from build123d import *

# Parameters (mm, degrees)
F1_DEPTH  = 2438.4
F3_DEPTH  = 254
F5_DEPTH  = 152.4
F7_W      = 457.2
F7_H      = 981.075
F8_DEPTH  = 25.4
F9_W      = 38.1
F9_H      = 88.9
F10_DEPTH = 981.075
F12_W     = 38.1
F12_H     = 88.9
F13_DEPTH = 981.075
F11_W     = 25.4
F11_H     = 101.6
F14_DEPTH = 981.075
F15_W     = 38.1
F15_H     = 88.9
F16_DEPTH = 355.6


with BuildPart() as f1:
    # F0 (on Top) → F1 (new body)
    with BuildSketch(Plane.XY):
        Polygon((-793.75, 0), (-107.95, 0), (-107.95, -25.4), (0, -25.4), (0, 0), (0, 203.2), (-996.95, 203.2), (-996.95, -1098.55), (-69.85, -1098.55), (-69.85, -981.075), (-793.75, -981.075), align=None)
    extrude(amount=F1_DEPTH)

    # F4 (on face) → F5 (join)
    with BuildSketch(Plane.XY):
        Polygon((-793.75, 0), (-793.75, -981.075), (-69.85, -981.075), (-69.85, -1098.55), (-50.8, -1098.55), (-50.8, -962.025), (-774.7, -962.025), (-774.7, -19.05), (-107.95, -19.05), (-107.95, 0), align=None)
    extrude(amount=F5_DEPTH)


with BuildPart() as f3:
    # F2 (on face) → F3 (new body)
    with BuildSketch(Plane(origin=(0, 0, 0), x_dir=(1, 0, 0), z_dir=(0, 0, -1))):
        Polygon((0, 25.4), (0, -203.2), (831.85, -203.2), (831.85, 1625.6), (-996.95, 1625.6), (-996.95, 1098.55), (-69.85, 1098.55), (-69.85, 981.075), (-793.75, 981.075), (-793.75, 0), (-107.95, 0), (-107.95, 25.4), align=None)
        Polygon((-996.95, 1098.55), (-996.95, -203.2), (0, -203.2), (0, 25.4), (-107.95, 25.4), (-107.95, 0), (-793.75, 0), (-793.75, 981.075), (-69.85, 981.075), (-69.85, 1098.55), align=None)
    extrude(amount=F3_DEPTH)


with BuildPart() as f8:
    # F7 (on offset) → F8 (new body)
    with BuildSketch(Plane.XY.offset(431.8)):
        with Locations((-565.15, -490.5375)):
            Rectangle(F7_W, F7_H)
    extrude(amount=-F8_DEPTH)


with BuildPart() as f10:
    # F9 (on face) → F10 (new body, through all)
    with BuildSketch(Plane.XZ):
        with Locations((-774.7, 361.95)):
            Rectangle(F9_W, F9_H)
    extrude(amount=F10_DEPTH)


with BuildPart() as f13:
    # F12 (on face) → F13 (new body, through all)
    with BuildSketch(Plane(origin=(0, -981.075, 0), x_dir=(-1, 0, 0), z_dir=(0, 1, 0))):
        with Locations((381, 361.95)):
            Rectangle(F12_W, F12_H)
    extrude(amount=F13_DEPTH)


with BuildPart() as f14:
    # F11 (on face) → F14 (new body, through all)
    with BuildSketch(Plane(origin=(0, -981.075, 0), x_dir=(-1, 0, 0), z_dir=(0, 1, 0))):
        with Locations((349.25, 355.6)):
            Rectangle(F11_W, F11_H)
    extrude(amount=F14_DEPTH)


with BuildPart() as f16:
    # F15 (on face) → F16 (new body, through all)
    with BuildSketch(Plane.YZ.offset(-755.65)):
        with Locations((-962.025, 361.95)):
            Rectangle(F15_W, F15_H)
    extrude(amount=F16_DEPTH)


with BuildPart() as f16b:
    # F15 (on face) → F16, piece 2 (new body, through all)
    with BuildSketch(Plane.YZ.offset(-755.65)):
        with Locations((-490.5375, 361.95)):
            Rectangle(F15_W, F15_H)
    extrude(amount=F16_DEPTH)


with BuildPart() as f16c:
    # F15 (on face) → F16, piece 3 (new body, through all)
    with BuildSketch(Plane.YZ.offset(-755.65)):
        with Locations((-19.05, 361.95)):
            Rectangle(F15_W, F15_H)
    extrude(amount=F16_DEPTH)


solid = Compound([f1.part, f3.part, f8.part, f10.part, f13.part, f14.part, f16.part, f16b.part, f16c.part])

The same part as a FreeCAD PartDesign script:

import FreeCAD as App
import Part
import Sketcher
from FreeCAD import Vector
Q = App.Units.Quantity

doc = App.newDocument("Part")
params = doc.addObject("Spreadsheet::Sheet", "Params")
for row, (alias, value) in enumerate([
    ("sketch1_width", "27 in"),
    ("sketch1_height", "1 in"),
    ("sketch1_height2", "9 in"),
    ("sketch1_width2", "36.5 in"),
    ("sketch1_width3", "28.5 in"),
    ("pad1_length", "96 in"),
    ("sketch2_width", "27 in"),
    ("sketch2_width2", "28.5 in"),
    ("sketch2_width3", "0.75 in"),
    ("sketch2_height", "38.625 in"),
    ("sketch2_height2", "5.375 in"),
    ("pad2_length", "6 in"),
    ("sketch3_width", "72 in"),
    ("pad3_length", "10 in"),
    ("sketch4_width", "18 in"),
    ("sketch4_height", "38.625 in"),
    ("pad4_length", "1 in"),
    ("sketch5_width", "1.5 in"),
    ("sketch5_height", "3.5 in"),
    ("pad5_length", "38.625 in"),
    ("sketch6_width", "1.5 in"),
    ("sketch6_height", "3.5 in"),
    ("pad6_length", "38.625 in"),
    ("sketch7_width", "1 in"),
    ("sketch7_height", "4 in"),
    ("pad7_length", "38.625 in"),
    ("sketch8_width", "1.5 in"),
    ("sketch8_height", "3.5 in"),
    ("pad8_length", "14 in"),
    ("sketch9_width", "1.5 in"),
    ("sketch9_height", "3.5 in"),
    ("pad9_length", "14 in"),
    ("sketch10_width", "1.5 in"),
    ("sketch10_height", "3.5 in"),
    ("pad10_length", "14 in"),
], start=1):
    params.set(f"A{row}", alias)
    params.set(f"B{row}", "=" + value)
    params.setAlias(f"B{row}", alias)

body = doc.addObject("PartDesign::Body", "Body")

# Sketch on XY plane
sketch1 = body.newObject("Sketcher::SketchObject", "Sketch")
sketch1.AttachmentSupport = (doc.getObject("XY_Plane"), [""])
sketch1.MapMode = "FlatFace"
sketch1.addGeometry(Part.LineSegment(Vector(-793.75, 0, 0), Vector(-107.95, 0, 0)), False)
sketch1.addGeometry(Part.LineSegment(Vector(-107.95, 0, 0), Vector(-107.95, -25.4, 0)), False)
sketch1.addGeometry(Part.LineSegment(Vector(-107.95, -25.4, 0), Vector(0, -25.4, 0)), False)
sketch1.addGeometry(Part.LineSegment(Vector(0, -25.4, 0), Vector(0, 203.2, 0)), False)
sketch1.addGeometry(Part.LineSegment(Vector(0, 203.2, 0), Vector(-996.95, 203.2, 0)), False)
sketch1.addGeometry(Part.LineSegment(Vector(-996.95, 203.2, 0), Vector(-996.95, -1098.55, 0)), False)
sketch1.addGeometry(Part.LineSegment(Vector(-996.95, -1098.55, 0), Vector(-69.85, -1098.55, 0)), False)
sketch1.addGeometry(Part.LineSegment(Vector(-69.85, -1098.55, 0), Vector(-69.85, -981.075, 0)), False)
sketch1.addGeometry(Part.LineSegment(Vector(-69.85, -981.075, 0), Vector(-793.75, -981.075, 0)), False)
sketch1.addGeometry(Part.LineSegment(Vector(-793.75, -981.075, 0), Vector(-793.75, 0, 0)), False)
sketch1.addConstraint(Sketcher.Constraint("Coincident", 0, 2, 1, 1))
sketch1.addConstraint(Sketcher.Constraint("Coincident", 1, 2, 2, 1))
sketch1.addConstraint(Sketcher.Constraint("Coincident", 2, 2, 3, 1))
sketch1.addConstraint(Sketcher.Constraint("Coincident", 3, 2, 4, 1))
sketch1.addConstraint(Sketcher.Constraint("Coincident", 4, 2, 5, 1))
sketch1.addConstraint(Sketcher.Constraint("Coincident", 5, 2, 6, 1))
sketch1.addConstraint(Sketcher.Constraint("Coincident", 6, 2, 7, 1))
sketch1.addConstraint(Sketcher.Constraint("Coincident", 7, 2, 8, 1))
sketch1.addConstraint(Sketcher.Constraint("Coincident", 8, 2, 9, 1))
sketch1.addConstraint(Sketcher.Constraint("Coincident", 9, 2, 0, 1))
sketch1.addConstraint(Sketcher.Constraint("Horizontal", 0))
sketch1.addConstraint(Sketcher.Constraint("Vertical", 1))
sketch1.addConstraint(Sketcher.Constraint("Horizontal", 2))
sketch1.addConstraint(Sketcher.Constraint("Vertical", 3))
sketch1.addConstraint(Sketcher.Constraint("Horizontal", 4))
sketch1.addConstraint(Sketcher.Constraint("Vertical", 5))
sketch1.addConstraint(Sketcher.Constraint("Horizontal", 6))
sketch1.addConstraint(Sketcher.Constraint("Vertical", 7))
sketch1.addConstraint(Sketcher.Constraint("Horizontal", 8))
sketch1.addConstraint(Sketcher.Constraint("Vertical", 9))
sketch1.addConstraint(Sketcher.Constraint("PointOnObject", 0, 2, -1))
sketch1.addConstraint(Sketcher.Constraint("PointOnObject", 2, 2, -2))
sketch1.addConstraint(Sketcher.Constraint("DistanceX", 0, 1, 0, 2, Q("27 in")))
sketch1.addConstraint(Sketcher.Constraint("DistanceY", 1, 2, 1, 1, Q("1 in")))
sketch1.addConstraint(Sketcher.Constraint("DistanceY", 3, 1, 3, 2, Q("9 in")))
sketch1.addConstraint(Sketcher.Constraint("DistanceX", 6, 1, 6, 2, Q("36.5 in")))
sketch1.addConstraint(Sketcher.Constraint("DistanceX", 8, 2, 8, 1, Q("28.5 in")))
sketch1.addConstraint(Sketcher.Constraint("DistanceX", 2, 1, 2, 2, Q("4.25 in")))
sketch1.addConstraint(Sketcher.Constraint("DistanceY", 5, 2, 5, 1, Q("51.25 in")))
sketch1.addConstraint(Sketcher.Constraint("DistanceY", 7, 1, 7, 2, Q("4.625 in")))
sketch1.setExpression("Constraints[22]", "Params.sketch1_width")
sketch1.setExpression("Constraints[23]", "Params.sketch1_height")
sketch1.setExpression("Constraints[24]", "Params.sketch1_height2")
sketch1.setExpression("Constraints[25]", "Params.sketch1_width2")
sketch1.setExpression("Constraints[26]", "Params.sketch1_width3")
pad1 = body.newObject("PartDesign::Pad", "Pad")
pad1.Profile = sketch1
pad1.setExpression("Length", "Params.pad1_length")

# Sketch on XY plane
sketch2 = body.newObject("Sketcher::SketchObject", "Sketch001")
sketch2.AttachmentSupport = (doc.getObject("XY_Plane"), [""])
sketch2.MapMode = "FlatFace"
sketch2.addGeometry(Part.LineSegment(Vector(-793.75, 0, 0), Vector(-793.75, -981.075, 0)), False)
sketch2.addGeometry(Part.LineSegment(Vector(-793.75, -981.075, 0), Vector(-69.85, -981.075, 0)), False)
sketch2.addGeometry(Part.LineSegment(Vector(-69.85, -981.075, 0), Vector(-69.85, -1098.55, 0)), False)
sketch2.addGeometry(Part.LineSegment(Vector(-69.85, -1098.55, 0), Vector(-50.8, -1098.55, 0)), False)
sketch2.addGeometry(Part.LineSegment(Vector(-50.8, -1098.55, 0), Vector(-50.8, -962.025, 0)), False)
sketch2.addGeometry(Part.LineSegment(Vector(-50.8, -962.025, 0), Vector(-774.7, -962.025, 0)), False)
sketch2.addGeometry(Part.LineSegment(Vector(-774.7, -962.025, 0), Vector(-774.7, -19.05, 0)), False)
sketch2.addGeometry(Part.LineSegment(Vector(-774.7, -19.05, 0), Vector(-107.95, -19.05, 0)), False)
sketch2.addGeometry(Part.LineSegment(Vector(-107.95, -19.05, 0), Vector(-107.95, 0, 0)), False)
sketch2.addGeometry(Part.LineSegment(Vector(-107.95, 0, 0), Vector(-793.75, 0, 0)), False)
sketch2.addConstraint(Sketcher.Constraint("Coincident", 0, 2, 1, 1))
sketch2.addConstraint(Sketcher.Constraint("Coincident", 1, 2, 2, 1))
sketch2.addConstraint(Sketcher.Constraint("Coincident", 2, 2, 3, 1))
sketch2.addConstraint(Sketcher.Constraint("Coincident", 3, 2, 4, 1))
sketch2.addConstraint(Sketcher.Constraint("Coincident", 4, 2, 5, 1))
sketch2.addConstraint(Sketcher.Constraint("Coincident", 5, 2, 6, 1))
sketch2.addConstraint(Sketcher.Constraint("Coincident", 6, 2, 7, 1))
sketch2.addConstraint(Sketcher.Constraint("Coincident", 7, 2, 8, 1))
sketch2.addConstraint(Sketcher.Constraint("Coincident", 8, 2, 9, 1))
sketch2.addConstraint(Sketcher.Constraint("Coincident", 9, 2, 0, 1))
sketch2.addConstraint(Sketcher.Constraint("Vertical", 0))
sketch2.addConstraint(Sketcher.Constraint("Horizontal", 1))
sketch2.addConstraint(Sketcher.Constraint("Vertical", 2))
sketch2.addConstraint(Sketcher.Constraint("Horizontal", 3))
sketch2.addConstraint(Sketcher.Constraint("Vertical", 4))
sketch2.addConstraint(Sketcher.Constraint("Horizontal", 5))
sketch2.addConstraint(Sketcher.Constraint("Vertical", 6))
sketch2.addConstraint(Sketcher.Constraint("Horizontal", 7))
sketch2.addConstraint(Sketcher.Constraint("Vertical", 8))
sketch2.addConstraint(Sketcher.Constraint("Horizontal", 9))
sketch2.addConstraint(Sketcher.Constraint("PointOnObject", 8, 2, -1))
sketch2.addConstraint(Sketcher.Constraint("Equal", 1, 5))
sketch2.addConstraint(Sketcher.Constraint("Equal", 3, 8))
sketch2.addConstraint(Sketcher.Constraint("DistanceX", 9, 2, 9, 1, Q("27 in")))
sketch2.addConstraint(Sketcher.Constraint("DistanceX", 1, 1, 1, 2, Q("28.5 in")))
sketch2.addConstraint(Sketcher.Constraint("DistanceX", 3, 2, -1, 1, Q("2 in")))
sketch2.addConstraint(Sketcher.Constraint("DistanceX", 3, 1, 3, 2, Q("0.75 in")))
sketch2.addConstraint(Sketcher.Constraint("DistanceY", 2, 2, 6, 2, Q("42.5 in")))
sketch2.addConstraint(Sketcher.Constraint("DistanceY", 0, 2, 0, 1, Q("38.625 in")))
sketch2.addConstraint(Sketcher.Constraint("DistanceY", 4, 1, 4, 2, Q("5.375 in")))
sketch2.setExpression("Constraints[23]", "Params.sketch2_width")
sketch2.setExpression("Constraints[24]", "Params.sketch2_width2")
sketch2.setExpression("Constraints[26]", "Params.sketch2_width3")
sketch2.setExpression("Constraints[28]", "Params.sketch2_height")
sketch2.setExpression("Constraints[29]", "Params.sketch2_height2")
pad2 = body.newObject("PartDesign::Pad", "Pad001")
pad2.Profile = sketch2
pad2.setExpression("Length", "Params.pad2_length")
body2 = doc.addObject("PartDesign::Body", "Body001")

# Sketch on XY plane
sketch3 = body2.newObject("Sketcher::SketchObject", "Sketch002")
sketch3.AttachmentSupport = (doc.getObject("XY_Plane001"), [""])
sketch3.MapMode = "FlatFace"
sketch3.addGeometry(Part.LineSegment(Vector(831.85, 203.2, 0), Vector(831.85, -1625.6, 0)), False)
sketch3.addGeometry(Part.LineSegment(Vector(831.85, -1625.6, 0), Vector(-996.95, -1625.6, 0)), False)
sketch3.addGeometry(Part.LineSegment(Vector(-996.95, -1625.6, 0), Vector(-996.95, 203.2, 0)), False)
sketch3.addGeometry(Part.LineSegment(Vector(-996.95, 203.2, 0), Vector(831.85, 203.2, 0)), False)
sketch3.addConstraint(Sketcher.Constraint("Coincident", 0, 2, 1, 1))
sketch3.addConstraint(Sketcher.Constraint("Coincident", 1, 2, 2, 1))
sketch3.addConstraint(Sketcher.Constraint("Coincident", 2, 2, 3, 1))
sketch3.addConstraint(Sketcher.Constraint("Coincident", 3, 2, 0, 1))
sketch3.addConstraint(Sketcher.Constraint("Vertical", 0))
sketch3.addConstraint(Sketcher.Constraint("Horizontal", 1))
sketch3.addConstraint(Sketcher.Constraint("Vertical", 2))
sketch3.addConstraint(Sketcher.Constraint("Horizontal", 3))
sketch3.addConstraint(Sketcher.Constraint("Equal", 3, 0))
sketch3.addConstraint(Sketcher.Constraint("DistanceX", 1, 2, 1, 1, Q("72 in")))
sketch3.addConstraint(Sketcher.Constraint("DistanceY", 0, 2, -1, 1, Q("64 in")))
sketch3.addConstraint(Sketcher.Constraint("DistanceX", -1, 1, 0, 2, Q("32.75 in")))
sketch3.setExpression("Constraints[9]", "Params.sketch3_width")
pad3 = body2.newObject("PartDesign::Pad", "Pad002")
pad3.Profile = sketch3
pad3.setExpression("Length", "Params.pad3_length")
pad3.Reversed = True
body3 = doc.addObject("PartDesign::Body", "Body002")

# Sketch on XY plane
sketch4 = body3.newObject("Sketcher::SketchObject", "Sketch003")
sketch4.AttachmentSupport = (doc.getObject("XY_Plane002"), [""])
sketch4.MapMode = "FlatFace"
sketch4.AttachmentOffset = App.Placement(Vector(0, 0, 17 * 25.4), App.Rotation())
sketch4.addGeometry(Part.LineSegment(Vector(-793.75, 0, 0), Vector(-793.75, -981.075, 0)), False)
sketch4.addGeometry(Part.LineSegment(Vector(-793.75, -981.075, 0), Vector(-336.55, -981.075, 0)), False)
sketch4.addGeometry(Part.LineSegment(Vector(-336.55, -981.075, 0), Vector(-336.55, 0, 0)), False)
sketch4.addGeometry(Part.LineSegment(Vector(-336.55, 0, 0), Vector(-793.75, 0, 0)), False)
sketch4.addConstraint(Sketcher.Constraint("Coincident", 0, 2, 1, 1))
sketch4.addConstraint(Sketcher.Constraint("Coincident", 1, 2, 2, 1))
sketch4.addConstraint(Sketcher.Constraint("Coincident", 2, 2, 3, 1))
sketch4.addConstraint(Sketcher.Constraint("Coincident", 3, 2, 0, 1))
sketch4.addConstraint(Sketcher.Constraint("Vertical", 0))
sketch4.addConstraint(Sketcher.Constraint("Horizontal", 1))
sketch4.addConstraint(Sketcher.Constraint("Vertical", 2))
sketch4.addConstraint(Sketcher.Constraint("Horizontal", 3))
sketch4.addConstraint(Sketcher.Constraint("PointOnObject", 2, 2, -1))
sketch4.addConstraint(Sketcher.Constraint("DistanceX", 1, 1, 1, 2, Q("18 in")))
sketch4.addConstraint(Sketcher.Constraint("DistanceY", 0, 2, 0, 1, Q("38.625 in")))
sketch4.addConstraint(Sketcher.Constraint("DistanceX", 0, 2, -1, 1, Q("31.25 in")))
sketch4.setExpression("Constraints[9]", "Params.sketch4_width")
sketch4.setExpression("Constraints[10]", "Params.sketch4_height")
pad4 = body3.newObject("PartDesign::Pad", "Pad003")
pad4.Profile = sketch4
pad4.setExpression("Length", "Params.pad4_length")
pad4.Reversed = True
body4 = doc.addObject("PartDesign::Body", "Body003")

# Sketch on XZ plane
sketch5 = body4.newObject("Sketcher::SketchObject", "Sketch004")
sketch5.AttachmentSupport = (doc.getObject("XZ_Plane003"), [""])
sketch5.MapMode = "FlatFace"
sketch5.addGeometry(Part.LineSegment(Vector(-793.75, 406.4, 0), Vector(-793.75, 317.5, 0)), False)
sketch5.addGeometry(Part.LineSegment(Vector(-793.75, 317.5, 0), Vector(-755.65, 317.5, 0)), False)
sketch5.addGeometry(Part.LineSegment(Vector(-755.65, 317.5, 0), Vector(-755.65, 406.4, 0)), False)
sketch5.addGeometry(Part.LineSegment(Vector(-755.65, 406.4, 0), Vector(-793.75, 406.4, 0)), False)
sketch5.addConstraint(Sketcher.Constraint("Coincident", 0, 2, 1, 1))
sketch5.addConstraint(Sketcher.Constraint("Coincident", 1, 2, 2, 1))
sketch5.addConstraint(Sketcher.Constraint("Coincident", 2, 2, 3, 1))
sketch5.addConstraint(Sketcher.Constraint("Coincident", 3, 2, 0, 1))
sketch5.addConstraint(Sketcher.Constraint("Vertical", 0))
sketch5.addConstraint(Sketcher.Constraint("Horizontal", 1))
sketch5.addConstraint(Sketcher.Constraint("Vertical", 2))
sketch5.addConstraint(Sketcher.Constraint("Horizontal", 3))
sketch5.addConstraint(Sketcher.Constraint("DistanceX", 1, 1, 1, 2, Q("1.5 in")))
sketch5.addConstraint(Sketcher.Constraint("DistanceY", 0, 2, 0, 1, Q("3.5 in")))
sketch5.addConstraint(Sketcher.Constraint("DistanceY", -1, 1, 2, 2, Q("16 in")))
sketch5.addConstraint(Sketcher.Constraint("DistanceX", 0, 2, -1, 1, Q("31.25 in")))
sketch5.setExpression("Constraints[8]", "Params.sketch5_width")
sketch5.setExpression("Constraints[9]", "Params.sketch5_height")
pad5 = body4.newObject("PartDesign::Pad", "Pad004")
pad5.Profile = sketch5
pad5.setExpression("Length", "Params.pad5_length")
body5 = doc.addObject("PartDesign::Body", "Body004")

# Sketch on XZ plane
sketch6 = body5.newObject("Sketcher::SketchObject", "Sketch005")
sketch6.AttachmentSupport = (doc.getObject("XZ_Plane004"), [""])
sketch6.MapMode = "FlatFace"
sketch6.AttachmentOffset = App.Placement(Vector(0, 0, 38.625 * 25.4), App.Rotation())
sketch6.addGeometry(Part.LineSegment(Vector(-361.95, 406.4, 0), Vector(-361.95, 317.5, 0)), False)
sketch6.addGeometry(Part.LineSegment(Vector(-361.95, 317.5, 0), Vector(-400.05, 317.5, 0)), False)
sketch6.addGeometry(Part.LineSegment(Vector(-400.05, 317.5, 0), Vector(-400.05, 406.4, 0)), False)
sketch6.addGeometry(Part.LineSegment(Vector(-400.05, 406.4, 0), Vector(-361.95, 406.4, 0)), False)
sketch6.addConstraint(Sketcher.Constraint("Coincident", 0, 2, 1, 1))
sketch6.addConstraint(Sketcher.Constraint("Coincident", 1, 2, 2, 1))
sketch6.addConstraint(Sketcher.Constraint("Coincident", 2, 2, 3, 1))
sketch6.addConstraint(Sketcher.Constraint("Coincident", 3, 2, 0, 1))
sketch6.addConstraint(Sketcher.Constraint("Vertical", 0))
sketch6.addConstraint(Sketcher.Constraint("Horizontal", 1))
sketch6.addConstraint(Sketcher.Constraint("Vertical", 2))
sketch6.addConstraint(Sketcher.Constraint("Horizontal", 3))
sketch6.addConstraint(Sketcher.Constraint("DistanceX", 1, 2, 1, 1, Q("1.5 in")))
sketch6.addConstraint(Sketcher.Constraint("DistanceY", 0, 2, 0, 1, Q("3.5 in")))
sketch6.addConstraint(Sketcher.Constraint("DistanceY", -1, 1, 2, 2, Q("16 in")))
sketch6.addConstraint(Sketcher.Constraint("DistanceX", 0, 2, -1, 1, Q("14.25 in")))
sketch6.setExpression("Constraints[8]", "Params.sketch6_width")
sketch6.setExpression("Constraints[9]", "Params.sketch6_height")
pad6 = body5.newObject("PartDesign::Pad", "Pad005")
pad6.Profile = sketch6
pad6.setExpression("Length", "Params.pad6_length")
pad6.Reversed = True
body6 = doc.addObject("PartDesign::Body", "Body005")

# Sketch on XZ plane
sketch7 = body6.newObject("Sketcher::SketchObject", "Sketch006")
sketch7.AttachmentSupport = (doc.getObject("XZ_Plane005"), [""])
sketch7.MapMode = "FlatFace"
sketch7.AttachmentOffset = App.Placement(Vector(0, 0, 38.625 * 25.4), App.Rotation())
sketch7.addGeometry(Part.LineSegment(Vector(-336.55, 406.4, 0), Vector(-336.55, 304.8, 0)), False)
sketch7.addGeometry(Part.LineSegment(Vector(-336.55, 304.8, 0), Vector(-361.95, 304.8, 0)), False)
sketch7.addGeometry(Part.LineSegment(Vector(-361.95, 304.8, 0), Vector(-361.95, 406.4, 0)), False)
sketch7.addGeometry(Part.LineSegment(Vector(-361.95, 406.4, 0), Vector(-336.55, 406.4, 0)), False)
sketch7.addConstraint(Sketcher.Constraint("Coincident", 0, 2, 1, 1))
sketch7.addConstraint(Sketcher.Constraint("Coincident", 1, 2, 2, 1))
sketch7.addConstraint(Sketcher.Constraint("Coincident", 2, 2, 3, 1))
sketch7.addConstraint(Sketcher.Constraint("Coincident", 3, 2, 0, 1))
sketch7.addConstraint(Sketcher.Constraint("Vertical", 0))
sketch7.addConstraint(Sketcher.Constraint("Horizontal", 1))
sketch7.addConstraint(Sketcher.Constraint("Vertical", 2))
sketch7.addConstraint(Sketcher.Constraint("Horizontal", 3))
sketch7.addConstraint(Sketcher.Constraint("DistanceX", 1, 2, 1, 1, Q("1 in")))
sketch7.addConstraint(Sketcher.Constraint("DistanceY", 0, 2, 0, 1, Q("4 in")))
sketch7.addConstraint(Sketcher.Constraint("DistanceY", -1, 1, 0, 2, Q("12 in")))
sketch7.addConstraint(Sketcher.Constraint("DistanceX", 0, 2, -1, 1, Q("13.25 in")))
sketch7.setExpression("Constraints[8]", "Params.sketch7_width")
sketch7.setExpression("Constraints[9]", "Params.sketch7_height")
pad7 = body6.newObject("PartDesign::Pad", "Pad006")
pad7.Profile = sketch7
pad7.setExpression("Length", "Params.pad7_length")
pad7.Reversed = True
body7 = doc.addObject("PartDesign::Body", "Body006")

# Sketch on YZ plane
sketch8 = body7.newObject("Sketcher::SketchObject", "Sketch007")
sketch8.AttachmentSupport = (doc.getObject("YZ_Plane006"), [""])
sketch8.MapMode = "FlatFace"
sketch8.AttachmentOffset = App.Placement(Vector(0, 0, -29.75 * 25.4), App.Rotation())
sketch8.addGeometry(Part.LineSegment(Vector(-981.075, 406.4, 0), Vector(-981.075, 317.5, 0)), False)
sketch8.addGeometry(Part.LineSegment(Vector(-981.075, 317.5, 0), Vector(-942.975, 317.5, 0)), False)
sketch8.addGeometry(Part.LineSegment(Vector(-942.975, 317.5, 0), Vector(-942.975, 406.4, 0)), False)
sketch8.addGeometry(Part.LineSegment(Vector(-942.975, 406.4, 0), Vector(-981.075, 406.4, 0)), False)
sketch8.addConstraint(Sketcher.Constraint("Coincident", 0, 2, 1, 1))
sketch8.addConstraint(Sketcher.Constraint("Coincident", 1, 2, 2, 1))
sketch8.addConstraint(Sketcher.Constraint("Coincident", 2, 2, 3, 1))
sketch8.addConstraint(Sketcher.Constraint("Coincident", 3, 2, 0, 1))
sketch8.addConstraint(Sketcher.Constraint("Vertical", 0))
sketch8.addConstraint(Sketcher.Constraint("Horizontal", 1))
sketch8.addConstraint(Sketcher.Constraint("Vertical", 2))
sketch8.addConstraint(Sketcher.Constraint("Horizontal", 3))
sketch8.addConstraint(Sketcher.Constraint("DistanceX", 1, 1, 1, 2, Q("1.5 in")))
sketch8.addConstraint(Sketcher.Constraint("DistanceY", 0, 2, 0, 1, Q("3.5 in")))
sketch8.addConstraint(Sketcher.Constraint("DistanceY", -1, 1, 2, 2, Q("16 in")))
sketch8.addConstraint(Sketcher.Constraint("DistanceX", 0, 2, -1, 1, Q("38.625 in")))
sketch8.setExpression("Constraints[8]", "Params.sketch8_width")
sketch8.setExpression("Constraints[9]", "Params.sketch8_height")
pad8 = body7.newObject("PartDesign::Pad", "Pad007")
pad8.Profile = sketch8
pad8.setExpression("Length", "Params.pad8_length")
body8 = doc.addObject("PartDesign::Body", "Body007")

# Sketch on YZ plane
sketch9 = body8.newObject("Sketcher::SketchObject", "Sketch008")
sketch9.AttachmentSupport = (doc.getObject("YZ_Plane007"), [""])
sketch9.MapMode = "FlatFace"
sketch9.AttachmentOffset = App.Placement(Vector(0, 0, -29.75 * 25.4), App.Rotation())
sketch9.addGeometry(Part.LineSegment(Vector(-509.5875, 406.4, 0), Vector(-509.5875, 317.5, 0)), False)
sketch9.addGeometry(Part.LineSegment(Vector(-509.5875, 317.5, 0), Vector(-471.4875, 317.5, 0)), False)
sketch9.addGeometry(Part.LineSegment(Vector(-471.4875, 317.5, 0), Vector(-471.4875, 406.4, 0)), False)
sketch9.addGeometry(Part.LineSegment(Vector(-471.4875, 406.4, 0), Vector(-509.5875, 406.4, 0)), False)
sketch9.addConstraint(Sketcher.Constraint("Coincident", 0, 2, 1, 1))
sketch9.addConstraint(Sketcher.Constraint("Coincident", 1, 2, 2, 1))
sketch9.addConstraint(Sketcher.Constraint("Coincident", 2, 2, 3, 1))
sketch9.addConstraint(Sketcher.Constraint("Coincident", 3, 2, 0, 1))
sketch9.addConstraint(Sketcher.Constraint("Vertical", 0))
sketch9.addConstraint(Sketcher.Constraint("Horizontal", 1))
sketch9.addConstraint(Sketcher.Constraint("Vertical", 2))
sketch9.addConstraint(Sketcher.Constraint("Horizontal", 3))
sketch9.addConstraint(Sketcher.Constraint("DistanceX", 1, 1, 1, 2, Q("1.5 in")))
sketch9.addConstraint(Sketcher.Constraint("DistanceY", 0, 2, 0, 1, Q("3.5 in")))
sketch9.addConstraint(Sketcher.Constraint("DistanceY", -1, 1, 2, 2, Q("16 in")))
sketch9.addConstraint(Sketcher.Constraint("DistanceX", 0, 2, -1, 1, Q("20.0625 in")))
sketch9.setExpression("Constraints[8]", "Params.sketch9_width")
sketch9.setExpression("Constraints[9]", "Params.sketch9_height")
pad9 = body8.newObject("PartDesign::Pad", "Pad008")
pad9.Profile = sketch9
pad9.setExpression("Length", "Params.pad9_length")
body9 = doc.addObject("PartDesign::Body", "Body008")

# Sketch on YZ plane
sketch10 = body9.newObject("Sketcher::SketchObject", "Sketch009")
sketch10.AttachmentSupport = (doc.getObject("YZ_Plane008"), [""])
sketch10.MapMode = "FlatFace"
sketch10.AttachmentOffset = App.Placement(Vector(0, 0, -29.75 * 25.4), App.Rotation())
sketch10.addGeometry(Part.LineSegment(Vector(-38.1, 406.4, 0), Vector(-38.1, 317.5, 0)), False)
sketch10.addGeometry(Part.LineSegment(Vector(-38.1, 317.5, 0), Vector(0, 317.5, 0)), False)
sketch10.addGeometry(Part.LineSegment(Vector(0, 317.5, 0), Vector(0, 406.4, 0)), False)
sketch10.addGeometry(Part.LineSegment(Vector(0, 406.4, 0), Vector(-38.1, 406.4, 0)), False)
sketch10.addConstraint(Sketcher.Constraint("Coincident", 0, 2, 1, 1))
sketch10.addConstraint(Sketcher.Constraint("Coincident", 1, 2, 2, 1))
sketch10.addConstraint(Sketcher.Constraint("Coincident", 2, 2, 3, 1))
sketch10.addConstraint(Sketcher.Constraint("Coincident", 3, 2, 0, 1))
sketch10.addConstraint(Sketcher.Constraint("Vertical", 0))
sketch10.addConstraint(Sketcher.Constraint("Horizontal", 1))
sketch10.addConstraint(Sketcher.Constraint("Vertical", 2))
sketch10.addConstraint(Sketcher.Constraint("Horizontal", 3))
sketch10.addConstraint(Sketcher.Constraint("PointOnObject", 1, 2, -2))
sketch10.addConstraint(Sketcher.Constraint("DistanceX", 1, 1, 1, 2, Q("1.5 in")))
sketch10.addConstraint(Sketcher.Constraint("DistanceY", 0, 2, 0, 1, Q("3.5 in")))
sketch10.addConstraint(Sketcher.Constraint("DistanceY", -1, 1, 2, 2, Q("16 in")))
sketch10.setExpression("Constraints[9]", "Params.sketch10_width")
sketch10.setExpression("Constraints[10]", "Params.sketch10_height")
pad10 = body9.newObject("PartDesign::Pad", "Pad009")
pad10.Profile = sketch10
pad10.setExpression("Length", "Params.pad10_length")

doc.recompute()
